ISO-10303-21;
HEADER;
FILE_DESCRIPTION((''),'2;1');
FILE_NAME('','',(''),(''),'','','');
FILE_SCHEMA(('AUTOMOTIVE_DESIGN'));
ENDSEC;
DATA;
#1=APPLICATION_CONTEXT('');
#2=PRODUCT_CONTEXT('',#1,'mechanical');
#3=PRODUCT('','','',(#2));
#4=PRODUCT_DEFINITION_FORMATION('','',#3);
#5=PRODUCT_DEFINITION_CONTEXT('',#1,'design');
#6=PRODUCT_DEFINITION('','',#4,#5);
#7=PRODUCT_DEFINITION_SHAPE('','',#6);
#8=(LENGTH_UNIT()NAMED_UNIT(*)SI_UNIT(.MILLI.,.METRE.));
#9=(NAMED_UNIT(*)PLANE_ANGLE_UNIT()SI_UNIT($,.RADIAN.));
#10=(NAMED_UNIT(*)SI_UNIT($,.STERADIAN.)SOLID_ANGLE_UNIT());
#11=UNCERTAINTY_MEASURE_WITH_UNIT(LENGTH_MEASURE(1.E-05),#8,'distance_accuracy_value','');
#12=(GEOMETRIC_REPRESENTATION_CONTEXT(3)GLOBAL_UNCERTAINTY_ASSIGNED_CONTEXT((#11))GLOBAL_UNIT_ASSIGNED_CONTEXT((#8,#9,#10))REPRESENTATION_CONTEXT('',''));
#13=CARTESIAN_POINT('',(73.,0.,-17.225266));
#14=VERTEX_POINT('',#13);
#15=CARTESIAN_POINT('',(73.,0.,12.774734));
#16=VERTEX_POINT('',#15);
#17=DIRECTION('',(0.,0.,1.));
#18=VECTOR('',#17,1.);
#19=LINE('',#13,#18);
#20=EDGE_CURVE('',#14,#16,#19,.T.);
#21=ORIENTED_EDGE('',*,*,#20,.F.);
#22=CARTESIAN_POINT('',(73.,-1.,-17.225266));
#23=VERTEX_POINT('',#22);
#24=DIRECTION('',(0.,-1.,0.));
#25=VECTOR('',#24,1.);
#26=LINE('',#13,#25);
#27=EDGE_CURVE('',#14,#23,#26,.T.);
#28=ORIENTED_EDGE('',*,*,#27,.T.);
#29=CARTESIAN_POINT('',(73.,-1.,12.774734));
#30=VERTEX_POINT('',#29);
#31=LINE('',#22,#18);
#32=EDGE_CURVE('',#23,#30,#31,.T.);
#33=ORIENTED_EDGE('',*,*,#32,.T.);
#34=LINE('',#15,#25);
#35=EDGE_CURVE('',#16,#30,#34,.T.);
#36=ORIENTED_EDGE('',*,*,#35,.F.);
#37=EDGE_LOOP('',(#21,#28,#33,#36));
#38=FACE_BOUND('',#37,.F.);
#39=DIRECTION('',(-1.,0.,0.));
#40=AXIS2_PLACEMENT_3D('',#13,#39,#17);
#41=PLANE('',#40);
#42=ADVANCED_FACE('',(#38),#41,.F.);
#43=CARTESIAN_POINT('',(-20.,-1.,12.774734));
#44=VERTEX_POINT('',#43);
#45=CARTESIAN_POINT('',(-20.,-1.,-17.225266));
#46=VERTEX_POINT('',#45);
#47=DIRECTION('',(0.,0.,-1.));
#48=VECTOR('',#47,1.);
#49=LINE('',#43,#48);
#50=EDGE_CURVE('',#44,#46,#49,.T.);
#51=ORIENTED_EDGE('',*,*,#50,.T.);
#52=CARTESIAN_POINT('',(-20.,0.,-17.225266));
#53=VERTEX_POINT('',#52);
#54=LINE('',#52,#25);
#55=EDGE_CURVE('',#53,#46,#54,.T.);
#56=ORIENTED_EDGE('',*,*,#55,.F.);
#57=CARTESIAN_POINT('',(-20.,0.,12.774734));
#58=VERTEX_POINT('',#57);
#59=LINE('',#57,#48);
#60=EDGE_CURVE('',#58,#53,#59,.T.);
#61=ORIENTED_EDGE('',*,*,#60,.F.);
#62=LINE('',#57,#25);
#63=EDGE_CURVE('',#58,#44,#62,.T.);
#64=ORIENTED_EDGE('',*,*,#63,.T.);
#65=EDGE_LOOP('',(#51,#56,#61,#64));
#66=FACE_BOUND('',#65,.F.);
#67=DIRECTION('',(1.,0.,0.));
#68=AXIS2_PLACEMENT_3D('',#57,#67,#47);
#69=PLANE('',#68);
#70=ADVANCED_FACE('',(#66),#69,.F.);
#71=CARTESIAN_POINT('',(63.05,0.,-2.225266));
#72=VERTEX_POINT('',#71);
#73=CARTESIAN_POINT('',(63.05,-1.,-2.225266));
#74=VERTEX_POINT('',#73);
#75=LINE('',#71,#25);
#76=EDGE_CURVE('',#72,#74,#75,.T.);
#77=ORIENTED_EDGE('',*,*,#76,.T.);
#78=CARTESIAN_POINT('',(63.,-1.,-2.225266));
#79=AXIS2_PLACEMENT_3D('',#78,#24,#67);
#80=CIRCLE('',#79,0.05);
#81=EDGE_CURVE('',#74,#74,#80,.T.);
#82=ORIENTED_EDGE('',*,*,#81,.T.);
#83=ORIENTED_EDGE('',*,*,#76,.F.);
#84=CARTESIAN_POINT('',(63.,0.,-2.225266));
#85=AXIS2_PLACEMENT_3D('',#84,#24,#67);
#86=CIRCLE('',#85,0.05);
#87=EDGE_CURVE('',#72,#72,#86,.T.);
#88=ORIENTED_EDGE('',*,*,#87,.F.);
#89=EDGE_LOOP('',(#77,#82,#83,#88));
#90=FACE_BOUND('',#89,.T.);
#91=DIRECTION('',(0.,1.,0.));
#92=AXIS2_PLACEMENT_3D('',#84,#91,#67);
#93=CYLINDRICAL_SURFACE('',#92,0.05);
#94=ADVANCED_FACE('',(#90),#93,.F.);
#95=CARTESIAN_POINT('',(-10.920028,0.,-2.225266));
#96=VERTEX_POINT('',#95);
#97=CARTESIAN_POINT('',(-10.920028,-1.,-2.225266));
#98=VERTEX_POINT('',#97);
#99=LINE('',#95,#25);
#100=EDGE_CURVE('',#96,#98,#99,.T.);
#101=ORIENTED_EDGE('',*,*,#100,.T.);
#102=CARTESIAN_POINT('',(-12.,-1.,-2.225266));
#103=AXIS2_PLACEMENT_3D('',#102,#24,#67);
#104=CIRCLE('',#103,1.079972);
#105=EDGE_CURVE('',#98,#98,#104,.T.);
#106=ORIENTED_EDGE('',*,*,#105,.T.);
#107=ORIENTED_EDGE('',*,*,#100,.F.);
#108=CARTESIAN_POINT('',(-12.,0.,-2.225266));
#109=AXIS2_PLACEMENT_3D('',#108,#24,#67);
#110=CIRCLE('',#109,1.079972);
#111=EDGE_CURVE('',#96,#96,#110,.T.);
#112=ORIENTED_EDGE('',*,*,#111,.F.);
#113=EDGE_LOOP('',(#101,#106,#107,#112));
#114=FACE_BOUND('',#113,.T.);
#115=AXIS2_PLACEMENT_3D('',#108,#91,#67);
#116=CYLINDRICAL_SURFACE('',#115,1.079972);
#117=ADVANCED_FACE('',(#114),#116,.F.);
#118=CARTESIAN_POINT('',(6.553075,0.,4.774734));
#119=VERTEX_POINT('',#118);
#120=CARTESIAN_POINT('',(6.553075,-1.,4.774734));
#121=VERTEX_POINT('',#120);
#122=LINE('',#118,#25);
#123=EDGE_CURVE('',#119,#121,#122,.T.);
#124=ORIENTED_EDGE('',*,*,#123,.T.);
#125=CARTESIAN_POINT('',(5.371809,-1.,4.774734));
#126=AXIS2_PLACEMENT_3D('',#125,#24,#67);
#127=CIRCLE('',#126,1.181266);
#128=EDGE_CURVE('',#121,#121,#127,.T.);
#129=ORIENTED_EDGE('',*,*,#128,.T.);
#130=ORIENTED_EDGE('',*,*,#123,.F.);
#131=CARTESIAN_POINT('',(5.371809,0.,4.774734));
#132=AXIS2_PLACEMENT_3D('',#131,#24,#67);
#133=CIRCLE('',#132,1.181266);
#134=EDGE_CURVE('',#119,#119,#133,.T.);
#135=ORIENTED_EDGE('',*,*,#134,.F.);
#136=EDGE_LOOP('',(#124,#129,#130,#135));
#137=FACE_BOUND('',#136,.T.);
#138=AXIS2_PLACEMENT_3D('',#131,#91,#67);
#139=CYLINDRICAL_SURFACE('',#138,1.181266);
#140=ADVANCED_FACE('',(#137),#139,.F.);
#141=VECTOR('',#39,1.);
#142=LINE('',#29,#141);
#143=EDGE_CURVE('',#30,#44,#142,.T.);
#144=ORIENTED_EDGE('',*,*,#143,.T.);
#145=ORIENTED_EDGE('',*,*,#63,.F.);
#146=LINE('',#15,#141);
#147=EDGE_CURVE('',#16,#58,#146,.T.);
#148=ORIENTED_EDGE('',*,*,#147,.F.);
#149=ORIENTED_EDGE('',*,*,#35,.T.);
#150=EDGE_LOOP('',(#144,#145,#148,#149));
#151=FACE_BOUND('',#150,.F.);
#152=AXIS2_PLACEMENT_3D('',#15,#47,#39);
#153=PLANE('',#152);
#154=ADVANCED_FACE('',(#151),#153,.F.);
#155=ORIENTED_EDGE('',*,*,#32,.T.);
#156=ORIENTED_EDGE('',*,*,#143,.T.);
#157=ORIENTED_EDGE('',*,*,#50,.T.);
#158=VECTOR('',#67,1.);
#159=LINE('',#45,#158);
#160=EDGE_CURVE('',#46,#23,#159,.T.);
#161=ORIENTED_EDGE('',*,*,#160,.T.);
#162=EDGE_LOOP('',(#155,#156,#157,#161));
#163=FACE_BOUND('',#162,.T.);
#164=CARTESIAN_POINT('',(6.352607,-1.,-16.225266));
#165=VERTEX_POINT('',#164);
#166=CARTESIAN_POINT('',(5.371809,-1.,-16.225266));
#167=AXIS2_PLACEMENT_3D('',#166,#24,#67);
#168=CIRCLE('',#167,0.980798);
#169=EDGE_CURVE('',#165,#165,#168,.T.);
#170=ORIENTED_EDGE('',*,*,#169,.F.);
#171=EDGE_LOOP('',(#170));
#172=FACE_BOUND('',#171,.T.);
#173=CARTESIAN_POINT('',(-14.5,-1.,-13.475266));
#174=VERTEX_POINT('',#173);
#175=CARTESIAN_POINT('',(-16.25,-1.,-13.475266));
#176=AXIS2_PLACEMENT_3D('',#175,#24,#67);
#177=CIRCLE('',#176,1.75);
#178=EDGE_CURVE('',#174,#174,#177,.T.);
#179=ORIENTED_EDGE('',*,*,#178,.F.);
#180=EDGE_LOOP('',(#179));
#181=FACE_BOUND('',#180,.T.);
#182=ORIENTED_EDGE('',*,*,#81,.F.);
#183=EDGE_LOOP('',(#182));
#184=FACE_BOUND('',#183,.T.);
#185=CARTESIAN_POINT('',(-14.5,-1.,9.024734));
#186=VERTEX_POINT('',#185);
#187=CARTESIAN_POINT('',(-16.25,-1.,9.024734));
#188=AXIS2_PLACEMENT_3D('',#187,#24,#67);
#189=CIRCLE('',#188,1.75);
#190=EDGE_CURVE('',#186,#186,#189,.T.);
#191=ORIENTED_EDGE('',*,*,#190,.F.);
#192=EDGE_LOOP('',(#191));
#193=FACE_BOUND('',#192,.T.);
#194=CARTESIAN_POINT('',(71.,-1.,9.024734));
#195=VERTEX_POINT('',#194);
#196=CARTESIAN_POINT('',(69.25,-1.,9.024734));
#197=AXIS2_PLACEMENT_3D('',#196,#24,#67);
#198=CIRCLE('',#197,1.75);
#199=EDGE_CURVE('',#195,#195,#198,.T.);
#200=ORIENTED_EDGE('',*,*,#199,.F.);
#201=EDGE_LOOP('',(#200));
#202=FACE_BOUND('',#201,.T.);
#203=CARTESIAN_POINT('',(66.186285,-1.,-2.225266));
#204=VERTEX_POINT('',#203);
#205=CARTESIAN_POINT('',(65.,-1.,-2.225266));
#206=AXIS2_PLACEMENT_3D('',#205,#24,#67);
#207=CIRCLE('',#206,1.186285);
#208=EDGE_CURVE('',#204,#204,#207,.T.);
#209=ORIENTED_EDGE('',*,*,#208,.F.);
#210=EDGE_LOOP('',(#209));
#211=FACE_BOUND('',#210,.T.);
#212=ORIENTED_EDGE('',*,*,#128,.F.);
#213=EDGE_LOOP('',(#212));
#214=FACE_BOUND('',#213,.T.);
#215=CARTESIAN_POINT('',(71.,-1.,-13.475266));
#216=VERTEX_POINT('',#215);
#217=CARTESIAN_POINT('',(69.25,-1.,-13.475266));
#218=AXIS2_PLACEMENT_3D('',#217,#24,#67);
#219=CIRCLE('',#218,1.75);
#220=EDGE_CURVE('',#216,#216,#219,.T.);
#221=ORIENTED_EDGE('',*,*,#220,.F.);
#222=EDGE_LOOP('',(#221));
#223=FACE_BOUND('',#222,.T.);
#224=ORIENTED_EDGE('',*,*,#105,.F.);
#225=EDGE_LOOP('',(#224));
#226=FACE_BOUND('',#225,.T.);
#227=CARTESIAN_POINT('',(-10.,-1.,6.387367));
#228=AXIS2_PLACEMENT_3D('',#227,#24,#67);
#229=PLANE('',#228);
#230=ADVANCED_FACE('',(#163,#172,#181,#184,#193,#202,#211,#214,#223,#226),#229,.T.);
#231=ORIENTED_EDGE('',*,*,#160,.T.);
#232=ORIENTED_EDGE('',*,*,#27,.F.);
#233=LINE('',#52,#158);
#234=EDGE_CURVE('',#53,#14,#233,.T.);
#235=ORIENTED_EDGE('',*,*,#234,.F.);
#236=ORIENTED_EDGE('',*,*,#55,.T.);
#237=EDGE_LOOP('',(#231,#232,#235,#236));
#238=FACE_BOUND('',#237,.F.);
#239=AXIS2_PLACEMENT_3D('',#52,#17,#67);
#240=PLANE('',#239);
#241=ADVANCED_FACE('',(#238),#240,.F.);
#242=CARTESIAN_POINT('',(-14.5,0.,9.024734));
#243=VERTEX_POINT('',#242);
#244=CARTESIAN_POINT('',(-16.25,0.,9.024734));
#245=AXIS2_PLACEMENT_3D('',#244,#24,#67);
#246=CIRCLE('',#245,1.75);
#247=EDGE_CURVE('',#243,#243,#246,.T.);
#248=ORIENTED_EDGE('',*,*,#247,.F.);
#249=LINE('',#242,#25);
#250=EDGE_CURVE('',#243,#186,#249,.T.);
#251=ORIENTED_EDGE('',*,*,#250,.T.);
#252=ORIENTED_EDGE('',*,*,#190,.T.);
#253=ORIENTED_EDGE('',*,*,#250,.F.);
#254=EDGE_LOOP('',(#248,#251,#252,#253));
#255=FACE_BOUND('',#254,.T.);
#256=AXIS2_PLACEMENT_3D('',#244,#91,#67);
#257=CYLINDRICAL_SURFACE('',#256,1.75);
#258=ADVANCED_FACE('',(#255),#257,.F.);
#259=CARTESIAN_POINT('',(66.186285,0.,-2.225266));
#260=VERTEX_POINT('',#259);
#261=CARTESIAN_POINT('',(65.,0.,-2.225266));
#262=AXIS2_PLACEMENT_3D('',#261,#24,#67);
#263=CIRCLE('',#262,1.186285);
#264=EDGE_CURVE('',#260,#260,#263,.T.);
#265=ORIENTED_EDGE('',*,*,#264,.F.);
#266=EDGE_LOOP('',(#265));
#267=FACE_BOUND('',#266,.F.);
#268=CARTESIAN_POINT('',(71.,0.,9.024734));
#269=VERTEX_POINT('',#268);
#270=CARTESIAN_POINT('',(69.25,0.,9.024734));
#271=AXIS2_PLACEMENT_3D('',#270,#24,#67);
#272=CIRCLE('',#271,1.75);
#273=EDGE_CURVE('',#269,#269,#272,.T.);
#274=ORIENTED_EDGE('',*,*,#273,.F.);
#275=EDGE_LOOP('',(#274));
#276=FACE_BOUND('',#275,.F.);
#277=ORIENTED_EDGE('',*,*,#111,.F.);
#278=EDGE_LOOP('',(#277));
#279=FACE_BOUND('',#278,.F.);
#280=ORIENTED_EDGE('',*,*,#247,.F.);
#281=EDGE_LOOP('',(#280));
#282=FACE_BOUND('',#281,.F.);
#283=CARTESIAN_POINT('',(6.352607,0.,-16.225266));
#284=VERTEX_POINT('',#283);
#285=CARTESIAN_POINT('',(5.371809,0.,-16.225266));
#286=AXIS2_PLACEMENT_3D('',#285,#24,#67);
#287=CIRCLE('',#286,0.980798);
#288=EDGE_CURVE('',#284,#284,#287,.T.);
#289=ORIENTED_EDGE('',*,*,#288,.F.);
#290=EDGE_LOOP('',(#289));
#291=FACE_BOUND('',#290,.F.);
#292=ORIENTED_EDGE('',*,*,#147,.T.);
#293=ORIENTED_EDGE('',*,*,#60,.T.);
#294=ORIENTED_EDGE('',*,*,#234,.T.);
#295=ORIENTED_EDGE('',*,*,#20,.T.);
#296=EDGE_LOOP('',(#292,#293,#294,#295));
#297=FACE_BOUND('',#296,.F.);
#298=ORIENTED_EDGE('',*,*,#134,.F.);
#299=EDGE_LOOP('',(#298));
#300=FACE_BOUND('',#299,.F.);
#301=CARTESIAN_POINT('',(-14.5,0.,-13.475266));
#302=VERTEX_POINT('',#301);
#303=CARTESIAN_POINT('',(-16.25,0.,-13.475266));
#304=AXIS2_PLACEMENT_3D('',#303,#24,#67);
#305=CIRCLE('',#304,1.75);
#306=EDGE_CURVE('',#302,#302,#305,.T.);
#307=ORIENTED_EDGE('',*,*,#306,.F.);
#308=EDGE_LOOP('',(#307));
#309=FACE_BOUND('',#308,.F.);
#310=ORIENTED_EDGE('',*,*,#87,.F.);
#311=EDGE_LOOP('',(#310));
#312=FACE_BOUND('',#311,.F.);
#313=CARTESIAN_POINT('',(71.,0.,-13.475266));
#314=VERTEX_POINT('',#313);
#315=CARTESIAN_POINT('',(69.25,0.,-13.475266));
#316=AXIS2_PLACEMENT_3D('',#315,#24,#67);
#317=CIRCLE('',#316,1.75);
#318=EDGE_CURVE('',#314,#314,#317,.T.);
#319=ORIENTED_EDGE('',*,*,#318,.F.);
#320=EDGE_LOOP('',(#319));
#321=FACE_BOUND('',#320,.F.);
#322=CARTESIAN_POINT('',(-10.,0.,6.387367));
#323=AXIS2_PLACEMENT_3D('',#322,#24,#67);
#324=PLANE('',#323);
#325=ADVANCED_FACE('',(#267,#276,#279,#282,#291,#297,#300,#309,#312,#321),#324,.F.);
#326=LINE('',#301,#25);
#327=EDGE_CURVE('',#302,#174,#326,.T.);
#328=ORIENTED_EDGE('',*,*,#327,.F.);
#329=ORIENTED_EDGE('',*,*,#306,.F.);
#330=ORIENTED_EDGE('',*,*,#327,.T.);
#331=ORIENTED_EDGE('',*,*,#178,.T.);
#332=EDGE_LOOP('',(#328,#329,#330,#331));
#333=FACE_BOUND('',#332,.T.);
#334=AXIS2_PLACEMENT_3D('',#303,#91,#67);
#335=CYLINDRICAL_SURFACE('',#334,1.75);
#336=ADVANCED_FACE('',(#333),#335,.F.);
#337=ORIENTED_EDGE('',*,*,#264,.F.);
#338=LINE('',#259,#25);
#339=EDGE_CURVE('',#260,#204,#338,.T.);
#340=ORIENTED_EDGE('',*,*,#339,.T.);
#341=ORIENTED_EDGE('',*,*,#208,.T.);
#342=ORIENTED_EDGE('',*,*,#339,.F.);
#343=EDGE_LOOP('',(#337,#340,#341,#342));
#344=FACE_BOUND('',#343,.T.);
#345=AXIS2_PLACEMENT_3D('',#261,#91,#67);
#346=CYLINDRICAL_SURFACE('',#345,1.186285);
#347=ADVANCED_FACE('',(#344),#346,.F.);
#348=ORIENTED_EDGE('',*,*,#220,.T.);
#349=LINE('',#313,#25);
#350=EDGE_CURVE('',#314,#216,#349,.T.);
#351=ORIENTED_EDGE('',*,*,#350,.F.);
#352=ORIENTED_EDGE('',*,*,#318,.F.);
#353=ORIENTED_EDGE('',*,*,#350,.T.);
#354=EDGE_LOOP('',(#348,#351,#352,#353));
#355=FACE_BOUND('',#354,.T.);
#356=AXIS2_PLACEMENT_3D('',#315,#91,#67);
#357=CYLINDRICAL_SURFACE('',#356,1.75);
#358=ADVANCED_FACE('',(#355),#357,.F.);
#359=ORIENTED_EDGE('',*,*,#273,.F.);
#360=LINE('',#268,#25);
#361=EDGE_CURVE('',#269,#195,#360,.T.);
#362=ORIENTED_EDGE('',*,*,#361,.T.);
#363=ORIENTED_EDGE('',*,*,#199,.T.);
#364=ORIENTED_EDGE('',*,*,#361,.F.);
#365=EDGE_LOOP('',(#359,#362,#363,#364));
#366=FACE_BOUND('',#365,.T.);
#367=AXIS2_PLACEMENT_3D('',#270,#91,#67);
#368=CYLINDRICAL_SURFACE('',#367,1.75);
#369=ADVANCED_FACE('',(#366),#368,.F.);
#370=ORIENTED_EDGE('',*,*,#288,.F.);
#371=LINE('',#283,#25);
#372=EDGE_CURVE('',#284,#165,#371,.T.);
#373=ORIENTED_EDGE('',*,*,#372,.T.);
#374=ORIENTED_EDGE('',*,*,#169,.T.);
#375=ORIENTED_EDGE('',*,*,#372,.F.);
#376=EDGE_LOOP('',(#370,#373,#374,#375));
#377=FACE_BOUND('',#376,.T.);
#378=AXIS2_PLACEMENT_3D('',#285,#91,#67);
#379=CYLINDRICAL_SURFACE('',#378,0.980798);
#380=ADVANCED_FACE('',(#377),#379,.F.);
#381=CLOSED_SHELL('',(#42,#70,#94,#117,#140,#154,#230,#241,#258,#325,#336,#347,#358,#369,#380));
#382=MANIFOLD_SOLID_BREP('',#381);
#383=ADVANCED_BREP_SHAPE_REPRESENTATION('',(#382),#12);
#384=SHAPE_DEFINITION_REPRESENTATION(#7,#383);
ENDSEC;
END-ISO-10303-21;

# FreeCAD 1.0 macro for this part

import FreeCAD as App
import Part
import Sketcher
from FreeCAD import Vector


def add_polygon(sketch, points):
    """Adds a closed chain of lines whose ends are joined by coincident constraints."""
    first, n = sketch.GeometryCount, len(points)
    for a, b in zip(points, points[1:] + points[:1]):
        sketch.addGeometry(Part.LineSegment(App.Vector(*a, 0), App.Vector(*b, 0)), False)
    for i in range(n):
        sketch.addConstraint(Sketcher.Constraint("Coincident", first + i, 2, first + (i + 1) % n, 1))

doc = App.newDocument("Part")
body = doc.addObject("PartDesign::Body", "Body")

sketch1 = body.newObject("Sketcher::SketchObject", "Sketch")
sketch1.AttachmentSupport = (doc.getObject("XZ_Plane"), [""])
sketch1.MapMode = "FlatFace"
add_polygon(sketch1, [(-20, 12.77), (-20, -17.23), (73, -17.23), (73, 12.77)])
sketch1.addGeometry(Part.Circle(Vector(-16.25, -13.48, 0), Vector(0, 0, 1), 1.75), False)
sketch1.addGeometry(Part.Circle(Vector(5.37, -16.23, 0), Vector(0, 0, 1), 0.98), False)
sketch1.addGeometry(Part.Circle(Vector(69.25, -13.48, 0), Vector(0, 0, 1), 1.75), False)
sketch1.addGeometry(Part.Circle(Vector(-12, -2.23, 0), Vector(0, 0, 1), 1.08), False)
sketch1.addGeometry(Part.Circle(Vector(-16.25, 9.02, 0), Vector(0, 0, 1), 1.75), False)
sketch1.addGeometry(Part.Circle(Vector(5.37, 4.77, 0), Vector(0, 0, 1), 1.18), False)
sketch1.addGeometry(Part.Circle(Vector(63, -2.23, 0), Vector(0, 0, 1), 0.05), False)
sketch1.addGeometry(Part.Circle(Vector(65, -2.23, 0), Vector(0, 0, 1), 1.19), False)
sketch1.addGeometry(Part.Circle(Vector(69.25, 9.02, 0), Vector(0, 0, 1), 1.75), False)
sketch1.addConstraint([
    Sketcher.Constraint("Vertical", 0),
    Sketcher.Constraint("Horizontal", 1),
    Sketcher.Constraint("Vertical", 2),
    Sketcher.Constraint("Horizontal", 3),
    Sketcher.Constraint("Equal", 4, 6),
    Sketcher.Constraint("Equal", 6, 8),
    Sketcher.Constraint("Equal", 8, 12),
    Sketcher.Constraint("Horizontal", 4, 3, 6, 3),
    Sketcher.Constraint("Horizontal", 7, 3, 10, 3),
    Sketcher.Constraint("Horizontal", 10, 3, 11, 3),
    Sketcher.Constraint("Horizontal", 8, 3, 12, 3),
    Sketcher.Constraint("Vertical", 4, 3, 8, 3),
    Sketcher.Constraint("Vertical", 5, 3, 9, 3),
    Sketcher.Constraint("Vertical", 6, 3, 12, 3),
    Sketcher.Constraint("Diameter", 4, 3.5),
    Sketcher.Constraint("Diameter", 10, 0.1),
    Sketcher.Constraint("DistanceX", 1, 1, 1, 2, 93.0),
    Sketcher.Constraint("DistanceY", 0, 2, 0, 1, 30.0),
    Sketcher.Constraint("DistanceX", 7, 3, -1, 1, 12.0),
    Sketcher.Constraint("DistanceX", -1, 1, 10, 3, 63.0),
    Sketcher.Constraint("DistanceX", -1, 1, 11, 3, 65.0),
    Sketcher.Constraint("DistanceX", 0, 2, -1, 1, 20.0),
    Sketcher.Constraint("DistanceY", 5, 3, 7, 3, 14.0),
    Sketcher.Constraint("DistanceY", 7, 3, 9, 3, 7.0),
    Sketcher.Constraint("DistanceY", 0, 2, 7, 3, 15.0),
    Sketcher.Constraint("DistanceX", 4, 3, 6, 3, 85.5),
    Sketcher.Constraint("DistanceY", 4, 3, 8, 3, 22.5),
    Sketcher.Constraint("Diameter", 9, 2.362532),
    Sketcher.Constraint("Diameter", 11, 2.37257),
    Sketcher.Constraint("DistanceX", 4, 3, -1, 1, 16.25),
    Sketcher.Constraint("DistanceY", 5, 3, 4, 3, 2.75),
    Sketcher.Constraint("Diameter", 5, 1.961596),
    Sketcher.Constraint("Diameter", 7, 2.159944),
    Sketcher.Constraint("DistanceX", -1, 1, 5, 3, 5.371809),
    Sketcher.Constraint("DistanceY", 4, 3, -1, 1, 13.475266),
])
pad1 = body.newObject("PartDesign::Pad", "Pad")
pad1.Profile = sketch1
pad1.Length = 1

doc.recompute()
